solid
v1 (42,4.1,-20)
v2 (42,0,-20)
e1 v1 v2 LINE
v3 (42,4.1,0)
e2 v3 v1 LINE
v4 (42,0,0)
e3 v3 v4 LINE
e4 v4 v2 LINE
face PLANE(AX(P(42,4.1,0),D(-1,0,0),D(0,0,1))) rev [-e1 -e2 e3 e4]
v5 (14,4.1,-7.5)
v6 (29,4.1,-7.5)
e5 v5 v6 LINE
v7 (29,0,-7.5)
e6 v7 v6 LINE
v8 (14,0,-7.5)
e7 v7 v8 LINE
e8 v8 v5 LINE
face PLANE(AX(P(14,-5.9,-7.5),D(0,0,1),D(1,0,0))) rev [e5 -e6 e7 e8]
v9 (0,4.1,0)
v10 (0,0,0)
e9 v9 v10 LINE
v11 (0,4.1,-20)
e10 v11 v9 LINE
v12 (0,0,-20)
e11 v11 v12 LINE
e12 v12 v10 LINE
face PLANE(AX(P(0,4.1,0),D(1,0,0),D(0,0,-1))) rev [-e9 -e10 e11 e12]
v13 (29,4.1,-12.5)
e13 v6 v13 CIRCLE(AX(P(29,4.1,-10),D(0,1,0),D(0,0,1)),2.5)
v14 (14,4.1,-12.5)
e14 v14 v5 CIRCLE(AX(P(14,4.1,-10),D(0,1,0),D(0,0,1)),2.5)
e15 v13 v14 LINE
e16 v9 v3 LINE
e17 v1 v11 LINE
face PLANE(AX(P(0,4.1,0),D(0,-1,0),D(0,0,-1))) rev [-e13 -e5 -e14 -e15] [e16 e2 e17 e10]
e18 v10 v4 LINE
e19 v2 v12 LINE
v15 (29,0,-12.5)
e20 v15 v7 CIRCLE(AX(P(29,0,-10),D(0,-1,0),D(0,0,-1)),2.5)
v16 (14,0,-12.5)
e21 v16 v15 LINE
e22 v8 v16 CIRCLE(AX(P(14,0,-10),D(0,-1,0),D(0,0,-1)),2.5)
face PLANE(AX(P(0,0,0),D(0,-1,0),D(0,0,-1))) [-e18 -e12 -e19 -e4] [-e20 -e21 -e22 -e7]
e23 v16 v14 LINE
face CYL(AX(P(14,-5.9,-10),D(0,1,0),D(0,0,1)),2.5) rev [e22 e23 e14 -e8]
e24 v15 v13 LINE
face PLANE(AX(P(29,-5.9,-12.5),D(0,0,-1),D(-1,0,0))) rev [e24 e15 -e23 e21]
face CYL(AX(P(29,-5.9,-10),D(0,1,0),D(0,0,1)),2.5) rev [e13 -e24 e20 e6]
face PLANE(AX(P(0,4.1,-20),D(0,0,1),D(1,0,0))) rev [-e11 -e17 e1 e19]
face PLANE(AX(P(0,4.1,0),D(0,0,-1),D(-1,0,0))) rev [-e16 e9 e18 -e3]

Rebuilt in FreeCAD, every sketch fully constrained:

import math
import FreeCAD as App
import Part
import Sketcher
Q = App.Units.Quantity


def add_polygon(sketch, points):
    """Adds a closed chain of lines whose ends are joined by coincident constraints."""
    first, n = sketch.GeometryCount, len(points)
    for a, b in zip(points, points[1:] + points[:1]):
        sketch.addGeometry(Part.LineSegment(App.Vector(*a, 0), App.Vector(*b, 0)), False)
    for i in range(n):
        sketch.addConstraint(Sketcher.Constraint("Coincident", first + i, 2, first + (i + 1) % n, 1))

doc = App.newDocument("Part")
body = doc.addObject("PartDesign::Body", "Body")

# Sketch on XZ plane
sketch1 = body.newObject("Sketcher::SketchObject", "Sketch")
sketch1.AttachmentSupport = (doc.getObject("XZ_Plane"), [""])
sketch1.MapMode = "FlatFace"
add_polygon(sketch1, [(0, -20), (0, 0), (42, 0), (42, -20)])  # lines 0-3
sketch1.addConstraint([
    Sketcher.Constraint("Vertical", 0),
    Sketcher.Constraint("Horizontal", 1),
    Sketcher.Constraint("Vertical", 2),
    Sketcher.Constraint("Horizontal", 3),
    Sketcher.Constraint("Coincident", 0, 2, -1, 1),
    Sketcher.Constraint("DistanceX", 1, 1, 1, 2, Q("42 mm")),
    Sketcher.Constraint("DistanceY", 0, 1, 0, 2, Q("20 mm")),
])
pad1 = body.newObject("PartDesign::Pad", "Pad")
pad1.Profile = sketch1
pad1.Length = 4.1
pad1.Reversed = True

# Sketch on XZ plane
sketch2 = body.newObject("Sketcher::SketchObject", "Sketch001")
sketch2.AttachmentSupport = (doc.getObject("XZ_Plane"), [""])
sketch2.MapMode = "FlatFace"
sketch2.AttachmentOffset = App.Placement(App.Vector(0, 0, -4.1), App.Rotation())
sketch2.addGeometry([
    Part.LineSegment(App.Vector(14, -7.5, 0), App.Vector(29, -7.5, 0)),
    Part.ArcOfCircle(Part.Circle(App.Vector(29, -10, 0), App.Vector(0, 0, 1), 2.5), math.radians(-90), math.radians(90)),
    Part.LineSegment(App.Vector(29, -12.5, 0), App.Vector(14, -12.5, 0)),
    Part.ArcOfCircle(Part.Circle(App.Vector(14, -10, 0), App.Vector(0, 0, 1), 2.5), math.radians(90), math.radians(270)),
], False)
sketch2.addConstraint([
    Sketcher.Constraint("Tangent", 0, 2, 1, 2),
    Sketcher.Constraint("Tangent", 1, 1, 2, 1),
    Sketcher.Constraint("Tangent", 2, 2, 3, 2),
    Sketcher.Constraint("Tangent", 3, 1, 0, 1),
    Sketcher.Constraint("Horizontal", 0),
    Sketcher.Constraint("Horizontal", 2),
    Sketcher.Constraint("Radius", 1, Q("2.5 mm")),
    Sketcher.Constraint("DistanceX", 0, 1, 0, 2, Q("15 mm")),
    Sketcher.Constraint("DistanceX", -1, 1, 1, 3, Q("29 mm")),
    Sketcher.Constraint("DistanceY", 1, 3, -1, 1, Q("10 mm")),
])
pocket1 = body.newObject("PartDesign::Pocket", "Pocket")
pocket1.Profile = sketch2
pocket1.Length = 10
pocket1.Reversed = True

doc.recompute()
